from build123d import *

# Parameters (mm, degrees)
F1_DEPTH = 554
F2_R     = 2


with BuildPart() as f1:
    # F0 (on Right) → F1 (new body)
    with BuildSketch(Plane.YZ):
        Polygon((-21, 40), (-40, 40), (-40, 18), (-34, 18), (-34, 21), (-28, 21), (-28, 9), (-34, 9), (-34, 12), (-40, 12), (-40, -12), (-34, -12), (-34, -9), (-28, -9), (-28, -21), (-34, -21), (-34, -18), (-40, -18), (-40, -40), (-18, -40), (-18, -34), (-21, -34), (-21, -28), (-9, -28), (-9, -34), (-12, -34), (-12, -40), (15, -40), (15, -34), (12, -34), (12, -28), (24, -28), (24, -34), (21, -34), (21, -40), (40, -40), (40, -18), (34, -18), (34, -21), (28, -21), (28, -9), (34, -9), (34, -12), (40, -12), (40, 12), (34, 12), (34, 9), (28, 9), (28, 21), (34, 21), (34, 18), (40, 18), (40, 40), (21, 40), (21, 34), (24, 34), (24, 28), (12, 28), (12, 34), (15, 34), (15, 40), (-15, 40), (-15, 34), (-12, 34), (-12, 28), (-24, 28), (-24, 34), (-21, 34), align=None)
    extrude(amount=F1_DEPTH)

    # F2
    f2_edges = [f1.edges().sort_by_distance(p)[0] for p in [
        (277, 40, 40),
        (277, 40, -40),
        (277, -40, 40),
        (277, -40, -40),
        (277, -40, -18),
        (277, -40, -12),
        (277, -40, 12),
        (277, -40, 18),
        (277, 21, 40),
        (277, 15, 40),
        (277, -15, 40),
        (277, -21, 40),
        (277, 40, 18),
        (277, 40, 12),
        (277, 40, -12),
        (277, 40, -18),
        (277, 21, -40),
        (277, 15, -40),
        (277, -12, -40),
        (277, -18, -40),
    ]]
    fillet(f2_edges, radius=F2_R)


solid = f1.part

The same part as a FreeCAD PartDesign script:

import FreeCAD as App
import Part
import Sketcher
from FreeCAD import Vector
Q = App.Units.Quantity


def edges_at(feature, points):
    """Names of the edges that pass closest to the given points."""
    edges = feature.Shape.Edges
    near = lambda p: min(range(len(edges)), key=lambda i: edges[i].distToShape(Part.Vertex(*p))[0])
    return sorted({f"Edge{near(p) + 1}" for p in points})


def add_polygon(sketch, points):
    """Adds a closed chain of lines whose ends are joined by coincident constraints."""
    first, n = sketch.GeometryCount, len(points)
    for a, b in zip(points, points[1:] + points[:1]):
        sketch.addGeometry(Part.LineSegment(App.Vector(*a, 0), App.Vector(*b, 0)), False)
    for i in range(n):
        sketch.addConstraint(Sketcher.Constraint("Coincident", first + i, 2, first + (i + 1) % n, 1))

doc = App.newDocument("Part")
body = doc.addObject("PartDesign::Body", "Body")

# Sketch on YZ plane
sketch1 = doc.addObject("Sketcher::SketchObject", "Sketch")
body.addObject(sketch1)
sketch1.AttachmentSupport = (doc.YZ_Plane, [""])
sketch1.MapMode = "FlatFace"
add_polygon(sketch1, [(-21, 40), (-40, 40), (-40, 18), (-34, 18), (-34, 21), (-28, 21), (-28, 9), (-34, 9), (-34, 12), (-40, 12), (-40, -12), (-34, -12), (-34, -9), (-28, -9), (-28, -21), (-34, -21), (-34, -18), (-40, -18), (-40, -40), (-18, -40), (-18, -34), (-21, -34), (-21, -28), (-9, -28), (-9, -34), (-12, -34), (-12, -40), (15, -40), (15, -34), (12, -34), (12, -28), (24, -28), (24, -34), (21, -34), (21, -40), (40, -40), (40, -18), (34, -18), (34, -21), (28, -21), (28, -9), (34, -9), (34, -12), (40, -12), (40, 12), (34, 12), (34, 9), (28, 9), (28, 21), (34, 21), (34, 18), (40, 18), (40, 40), (21, 40), (21, 34), (24, 34), (24, 28), (12, 28), (12, 34), (15, 34), (15, 40), (-15, 40), (-15, 34), (-12, 34), (-12, 28), (-24, 28), (-24, 34), (-21, 34)])  # lines 0-67
sketch1.addConstraint(Sketcher.Constraint("Horizontal", 0))
sketch1.addConstraint(Sketcher.Constraint("Vertical", 1))
sketch1.addConstraint(Sketcher.Constraint("Horizontal", 2))
sketch1.addConstraint(Sketcher.Constraint("Vertical", 3))
sketch1.addConstraint(Sketcher.Constraint("Horizontal", 4))
sketch1.addConstraint(Sketcher.Constraint("Vertical", 5))
sketch1.addConstraint(Sketcher.Constraint("Horizontal", 6))
sketch1.addConstraint(Sketcher.Constraint("Vertical", 7))
sketch1.addConstraint(Sketcher.Constraint("Horizontal", 8))
sketch1.addConstraint(Sketcher.Constraint("Vertical", 9))
sketch1.addConstraint(Sketcher.Constraint("Horizontal", 10))
sketch1.addConstraint(Sketcher.Constraint("Vertical", 11))
sketch1.addConstraint(Sketcher.Constraint("Horizontal", 12))
sketch1.addConstraint(Sketcher.Constraint("Vertical", 13))
sketch1.addConstraint(Sketcher.Constraint("Horizontal", 14))
sketch1.addConstraint(Sketcher.Constraint("Vertical", 15))
sketch1.addConstraint(Sketcher.Constraint("Horizontal", 16))
sketch1.addConstraint(Sketcher.Constraint("Vertical", 17))
sketch1.addConstraint(Sketcher.Constraint("Horizontal", 18))
sketch1.addConstraint(Sketcher.Constraint("Vertical", 19))
sketch1.addConstraint(Sketcher.Constraint("Horizontal", 20))
sketch1.addConstraint(Sketcher.Constraint("Vertical", 21))
sketch1.addConstraint(Sketcher.Constraint("Horizontal", 22))
sketch1.addConstraint(Sketcher.Constraint("Vertical", 23))
sketch1.addConstraint(Sketcher.Constraint("Horizontal", 24))
sketch1.addConstraint(Sketcher.Constraint("Vertical", 25))
sketch1.addConstraint(Sketcher.Constraint("Horizontal", 26))
sketch1.addConstraint(Sketcher.Constraint("Vertical", 27))
sketch1.addConstraint(Sketcher.Constraint("Horizontal", 28))
sketch1.addConstraint(Sketcher.Constraint("Vertical", 29))
sketch1.addConstraint(Sketcher.Constraint("Horizontal", 30))
sketch1.addConstraint(Sketcher.Constraint("Vertical", 31))
sketch1.addConstraint(Sketcher.Constraint("Horizontal", 32))
sketch1.addConstraint(Sketcher.Constraint("Vertical", 33))
sketch1.addConstraint(Sketcher.Constraint("Horizontal", 34))
sketch1.addConstraint(Sketcher.Constraint("Vertical", 35))
sketch1.addConstraint(Sketcher.Constraint("Horizontal", 36))
sketch1.addConstraint(Sketcher.Constraint("Vertical", 37))
sketch1.addConstraint(Sketcher.Constraint("Horizontal", 38))
sketch1.addConstraint(Sketcher.Constraint("Vertical", 39))
sketch1.addConstraint(Sketcher.Constraint("Horizontal", 40))
sketch1.addConstraint(Sketcher.Constraint("Vertical", 41))
sketch1.addConstraint(Sketcher.Constraint("Horizontal", 42))
sketch1.addConstraint(Sketcher.Constraint("Vertical", 43))
sketch1.addConstraint(Sketcher.Constraint("Horizontal", 44))
sketch1.addConstraint(Sketcher.Constraint("Vertical", 45))
sketch1.addConstraint(Sketcher.Constraint("Horizontal", 46))
sketch1.addConstraint(Sketcher.Constraint("Vertical", 47))
sketch1.addConstraint(Sketcher.Constraint("Horizontal", 48))
sketch1.addConstraint(Sketcher.Constraint("Vertical", 49))
sketch1.addConstraint(Sketcher.Constraint("Horizontal", 50))
sketch1.addConstraint(Sketcher.Constraint("Vertical", 51))
sketch1.addConstraint(Sketcher.Constraint("Horizontal", 52))
sketch1.addConstraint(Sketcher.Constraint("Vertical", 53))
sketch1.addConstraint(Sketcher.Constraint("Horizontal", 54))
sketch1.addConstraint(Sketcher.Constraint("Vertical", 55))
sketch1.addConstraint(Sketcher.Constraint("Horizontal", 56))
sketch1.addConstraint(Sketcher.Constraint("Vertical", 57))
sketch1.addConstraint(Sketcher.Constraint("Horizontal", 58))
sketch1.addConstraint(Sketcher.Constraint("Vertical", 59))
sketch1.addConstraint(Sketcher.Constraint("Horizontal", 60))
sketch1.addConstraint(Sketcher.Constraint("Vertical", 61))
sketch1.addConstraint(Sketcher.Constraint("Horizontal", 62))
sketch1.addConstraint(Sketcher.Constraint("Vertical", 63))
sketch1.addConstraint(Sketcher.Constraint("Horizontal", 64))
sketch1.addConstraint(Sketcher.Constraint("Vertical", 65))
sketch1.addConstraint(Sketcher.Constraint("Horizontal", 66))
sketch1.addConstraint(Sketcher.Constraint("Vertical", 67))
sketch1.addConstraint(Sketcher.Constraint("Symmetric", 0, 2, 34, 2, -1, 1))
sketch1.addConstraint(Sketcher.Constraint("Symmetric", 2, 2, 36, 2, -1, 1))
sketch1.addConstraint(Sketcher.Constraint("Symmetric", 4, 2, 38, 2, -1, 1))
sketch1.addConstraint(Sketcher.Constraint("Symmetric", 6, 2, 40, 2, -1, 1))
sketch1.addConstraint(Sketcher.Constraint("Symmetric", 8, 2, 42, 2, -1, 1))
sketch1.addConstraint(Sketcher.Constraint("Symmetric", 10, 2, 44, 2, -1, 1))
sketch1.addConstraint(Sketcher.Constraint("Symmetric", 12, 2, 46, 2, -1, 1))
sketch1.addConstraint(Sketcher.Constraint("Symmetric", 14, 2, 48, 2, -1, 1))
sketch1.addConstraint(Sketcher.Constraint("Symmetric", 16, 2, 50, 2, -1, 1))
sketch1.addConstraint(Sketcher.Constraint("Symmetric", 20, 2, 53, 2, -1, 1))
sketch1.addConstraint(Sketcher.Constraint("Symmetric", 24, 2, 57, 2, -1, 1))
sketch1.addConstraint(Sketcher.Constraint("Symmetric", 26, 2, 60, 2, -1, 1))
sketch1.addConstraint(Sketcher.Constraint("Symmetric", 28, 2, 62, 2, -1, 1))
sketch1.addConstraint(Sketcher.Constraint("Symmetric", 30, 2, 64, 2, -1, 1))
sketch1.addConstraint(Sketcher.Constraint("Symmetric", 32, 2, 66, 2, -1, 1))
sketch1.addConstraint(Sketcher.Constraint("Symmetric", 24, 2, 28, 2, -2))
sketch1.addConstraint(Sketcher.Constraint("Symmetric", 20, 2, 32, 2, -2))
sketch1.addConstraint(Sketcher.Constraint("Symmetric", 17, 2, 34, 2, -2))
sketch1.addConstraint(Sketcher.Constraint("Symmetric", 15, 2, 36, 2, -2))
sketch1.addConstraint(Sketcher.Constraint("Symmetric", 13, 2, 38, 2, -2))
sketch1.addConstraint(Sketcher.Constraint("Symmetric", 11, 2, 40, 2, -2))
sketch1.addConstraint(Sketcher.Constraint("Symmetric", 55, 2, 64, 2, -2))
sketch1.addConstraint(Sketcher.Constraint("Horizontal", 20, 2, 23, 2))
sketch1.addConstraint(Sketcher.Constraint("Horizontal", 18, 2, 25, 2))
sketch1.addConstraint(Sketcher.Constraint("Horizontal", 22, 2, 29, 2))
sketch1.addConstraint(Sketcher.Constraint("Horizontal", 10, 2, 41, 2))
sketch1.addConstraint(Sketcher.Constraint("Horizontal", 0, 2, 51, 2))
sketch1.addConstraint(Sketcher.Constraint("Vertical", 3, 2, 6, 2))
sketch1.addConstraint(Sketcher.Constraint("Vertical", 1, 2, 8, 2))
sketch1.addConstraint(Sketcher.Constraint("Vertical", 27, 2, 58, 2))
sketch1.addConstraint(Sketcher.Constraint("Equal", 2, 4))
sketch1.addConstraint(Sketcher.Constraint("Equal", 20, 24))
sketch1.addConstraint(Sketcher.Constraint("Equal", 24, 28))
sketch1.addConstraint(Sketcher.Constraint("Equal", 22, 30))
sketch1.addConstraint(Sketcher.Constraint("Equal", 18, 1))
sketch1.addConstraint(Sketcher.Constraint("Equal", 66, 3))
sketch1.addConstraint(Sketcher.Constraint("Equal", 64, 5))
sketch1.addConstraint(Sketcher.Constraint("Equal", 3, 7))
sketch1.addConstraint(Sketcher.Constraint("Equal", 50, 19))
sketch1.addConstraint(Sketcher.Constraint("Equal", 19, 21))
sketch1.addConstraint(Sketcher.Constraint("DistanceX", 0, 2, 0, 1, Q("19 mm")))
sketch1.addConstraint(Sketcher.Constraint("DistanceX", 2, 1, 2, 2, Q("6 mm")))
sketch1.addConstraint(Sketcher.Constraint("DistanceX", 18, 1, 18, 2, Q("22 mm")))
sketch1.addConstraint(Sketcher.Constraint("DistanceX", 22, 1, 22, 2, Q("12 mm")))
sketch1.addConstraint(Sketcher.Constraint("DistanceX", 26, 1, 26, 2, Q("27 mm")))
sketch1.addConstraint(Sketcher.Constraint("DistanceY", 9, 2, 9, 1, Q("24 mm")))
pad1 = doc.addObject("PartDesign::Pad", "Pad")
body.addObject(pad1)
pad1.Profile = sketch1
pad1.Length = 554
doc.recompute()

fillet = doc.addObject("PartDesign::Fillet", "Fillet")
body.addObject(fillet)
fillet.Base = (pad1, edges_at(pad1, [
    (277, 40, 40),
    (277, 40, -40),
    (277, -40, 40),
    (277, -40, -40),
    (277, -40, -18),
    (277, -40, -12),
    (277, -40, 12),
    (277, -40, 18),
    (277, 21, 40),
    (277, 15, 40),
    (277, -15, 40),
    (277, -21, 40),
    (277, 40, 18),
    (277, 40, 12),
    (277, 40, -12),
    (277, 40, -18),
    (277, 21, -40),
    (277, 15, -40),
    (277, -12, -40),
    (277, -18, -40),
]))
fillet.Radius = 2

doc.recompute()
